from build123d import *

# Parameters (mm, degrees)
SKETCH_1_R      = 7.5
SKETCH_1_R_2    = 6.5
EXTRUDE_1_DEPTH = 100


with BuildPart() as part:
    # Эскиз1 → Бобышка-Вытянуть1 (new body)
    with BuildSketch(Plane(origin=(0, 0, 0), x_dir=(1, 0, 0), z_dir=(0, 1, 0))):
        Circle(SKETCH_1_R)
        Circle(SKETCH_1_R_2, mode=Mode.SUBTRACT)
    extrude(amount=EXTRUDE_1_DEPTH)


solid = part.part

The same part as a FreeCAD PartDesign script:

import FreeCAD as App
import Part
import Sketcher

V = App.Vector
Q = App.Units.Quantity

doc = App.newDocument("Part")
body = doc.addObject("PartDesign::Body", "Body")

# Sketch on XZ plane
sketch1 = doc.addObject("Sketcher::SketchObject", "Sketch")
body.addObject(sketch1)
sketch1.AttachmentSupport = (doc.XZ_Plane, [""])
sketch1.MapMode = "FlatFace"
sketch1.addGeometry(Part.Circle(V(0, 0, 0), V(0, 0, 1), 7.5), False)
sketch1.addGeometry(Part.Circle(V(0, 0, 0), V(0, 0, 1), 6.5), False)
sketch1.addConstraint(Sketcher.Constraint("Coincident", 0, 3, -1, 1))
sketch1.addConstraint(Sketcher.Constraint("Coincident", 1, 3, -1, 1))
sketch1.addConstraint(Sketcher.Constraint("Diameter", 0, Q("15 mm")))
sketch1.addConstraint(Sketcher.Constraint("Diameter", 1, Q("13 mm")))
pad1 = doc.addObject("PartDesign::Pad", "Pad")
body.addObject(pad1)
pad1.Profile = sketch1
pad1.Length = 100
pad1.Reversed = True

doc.recompute()
